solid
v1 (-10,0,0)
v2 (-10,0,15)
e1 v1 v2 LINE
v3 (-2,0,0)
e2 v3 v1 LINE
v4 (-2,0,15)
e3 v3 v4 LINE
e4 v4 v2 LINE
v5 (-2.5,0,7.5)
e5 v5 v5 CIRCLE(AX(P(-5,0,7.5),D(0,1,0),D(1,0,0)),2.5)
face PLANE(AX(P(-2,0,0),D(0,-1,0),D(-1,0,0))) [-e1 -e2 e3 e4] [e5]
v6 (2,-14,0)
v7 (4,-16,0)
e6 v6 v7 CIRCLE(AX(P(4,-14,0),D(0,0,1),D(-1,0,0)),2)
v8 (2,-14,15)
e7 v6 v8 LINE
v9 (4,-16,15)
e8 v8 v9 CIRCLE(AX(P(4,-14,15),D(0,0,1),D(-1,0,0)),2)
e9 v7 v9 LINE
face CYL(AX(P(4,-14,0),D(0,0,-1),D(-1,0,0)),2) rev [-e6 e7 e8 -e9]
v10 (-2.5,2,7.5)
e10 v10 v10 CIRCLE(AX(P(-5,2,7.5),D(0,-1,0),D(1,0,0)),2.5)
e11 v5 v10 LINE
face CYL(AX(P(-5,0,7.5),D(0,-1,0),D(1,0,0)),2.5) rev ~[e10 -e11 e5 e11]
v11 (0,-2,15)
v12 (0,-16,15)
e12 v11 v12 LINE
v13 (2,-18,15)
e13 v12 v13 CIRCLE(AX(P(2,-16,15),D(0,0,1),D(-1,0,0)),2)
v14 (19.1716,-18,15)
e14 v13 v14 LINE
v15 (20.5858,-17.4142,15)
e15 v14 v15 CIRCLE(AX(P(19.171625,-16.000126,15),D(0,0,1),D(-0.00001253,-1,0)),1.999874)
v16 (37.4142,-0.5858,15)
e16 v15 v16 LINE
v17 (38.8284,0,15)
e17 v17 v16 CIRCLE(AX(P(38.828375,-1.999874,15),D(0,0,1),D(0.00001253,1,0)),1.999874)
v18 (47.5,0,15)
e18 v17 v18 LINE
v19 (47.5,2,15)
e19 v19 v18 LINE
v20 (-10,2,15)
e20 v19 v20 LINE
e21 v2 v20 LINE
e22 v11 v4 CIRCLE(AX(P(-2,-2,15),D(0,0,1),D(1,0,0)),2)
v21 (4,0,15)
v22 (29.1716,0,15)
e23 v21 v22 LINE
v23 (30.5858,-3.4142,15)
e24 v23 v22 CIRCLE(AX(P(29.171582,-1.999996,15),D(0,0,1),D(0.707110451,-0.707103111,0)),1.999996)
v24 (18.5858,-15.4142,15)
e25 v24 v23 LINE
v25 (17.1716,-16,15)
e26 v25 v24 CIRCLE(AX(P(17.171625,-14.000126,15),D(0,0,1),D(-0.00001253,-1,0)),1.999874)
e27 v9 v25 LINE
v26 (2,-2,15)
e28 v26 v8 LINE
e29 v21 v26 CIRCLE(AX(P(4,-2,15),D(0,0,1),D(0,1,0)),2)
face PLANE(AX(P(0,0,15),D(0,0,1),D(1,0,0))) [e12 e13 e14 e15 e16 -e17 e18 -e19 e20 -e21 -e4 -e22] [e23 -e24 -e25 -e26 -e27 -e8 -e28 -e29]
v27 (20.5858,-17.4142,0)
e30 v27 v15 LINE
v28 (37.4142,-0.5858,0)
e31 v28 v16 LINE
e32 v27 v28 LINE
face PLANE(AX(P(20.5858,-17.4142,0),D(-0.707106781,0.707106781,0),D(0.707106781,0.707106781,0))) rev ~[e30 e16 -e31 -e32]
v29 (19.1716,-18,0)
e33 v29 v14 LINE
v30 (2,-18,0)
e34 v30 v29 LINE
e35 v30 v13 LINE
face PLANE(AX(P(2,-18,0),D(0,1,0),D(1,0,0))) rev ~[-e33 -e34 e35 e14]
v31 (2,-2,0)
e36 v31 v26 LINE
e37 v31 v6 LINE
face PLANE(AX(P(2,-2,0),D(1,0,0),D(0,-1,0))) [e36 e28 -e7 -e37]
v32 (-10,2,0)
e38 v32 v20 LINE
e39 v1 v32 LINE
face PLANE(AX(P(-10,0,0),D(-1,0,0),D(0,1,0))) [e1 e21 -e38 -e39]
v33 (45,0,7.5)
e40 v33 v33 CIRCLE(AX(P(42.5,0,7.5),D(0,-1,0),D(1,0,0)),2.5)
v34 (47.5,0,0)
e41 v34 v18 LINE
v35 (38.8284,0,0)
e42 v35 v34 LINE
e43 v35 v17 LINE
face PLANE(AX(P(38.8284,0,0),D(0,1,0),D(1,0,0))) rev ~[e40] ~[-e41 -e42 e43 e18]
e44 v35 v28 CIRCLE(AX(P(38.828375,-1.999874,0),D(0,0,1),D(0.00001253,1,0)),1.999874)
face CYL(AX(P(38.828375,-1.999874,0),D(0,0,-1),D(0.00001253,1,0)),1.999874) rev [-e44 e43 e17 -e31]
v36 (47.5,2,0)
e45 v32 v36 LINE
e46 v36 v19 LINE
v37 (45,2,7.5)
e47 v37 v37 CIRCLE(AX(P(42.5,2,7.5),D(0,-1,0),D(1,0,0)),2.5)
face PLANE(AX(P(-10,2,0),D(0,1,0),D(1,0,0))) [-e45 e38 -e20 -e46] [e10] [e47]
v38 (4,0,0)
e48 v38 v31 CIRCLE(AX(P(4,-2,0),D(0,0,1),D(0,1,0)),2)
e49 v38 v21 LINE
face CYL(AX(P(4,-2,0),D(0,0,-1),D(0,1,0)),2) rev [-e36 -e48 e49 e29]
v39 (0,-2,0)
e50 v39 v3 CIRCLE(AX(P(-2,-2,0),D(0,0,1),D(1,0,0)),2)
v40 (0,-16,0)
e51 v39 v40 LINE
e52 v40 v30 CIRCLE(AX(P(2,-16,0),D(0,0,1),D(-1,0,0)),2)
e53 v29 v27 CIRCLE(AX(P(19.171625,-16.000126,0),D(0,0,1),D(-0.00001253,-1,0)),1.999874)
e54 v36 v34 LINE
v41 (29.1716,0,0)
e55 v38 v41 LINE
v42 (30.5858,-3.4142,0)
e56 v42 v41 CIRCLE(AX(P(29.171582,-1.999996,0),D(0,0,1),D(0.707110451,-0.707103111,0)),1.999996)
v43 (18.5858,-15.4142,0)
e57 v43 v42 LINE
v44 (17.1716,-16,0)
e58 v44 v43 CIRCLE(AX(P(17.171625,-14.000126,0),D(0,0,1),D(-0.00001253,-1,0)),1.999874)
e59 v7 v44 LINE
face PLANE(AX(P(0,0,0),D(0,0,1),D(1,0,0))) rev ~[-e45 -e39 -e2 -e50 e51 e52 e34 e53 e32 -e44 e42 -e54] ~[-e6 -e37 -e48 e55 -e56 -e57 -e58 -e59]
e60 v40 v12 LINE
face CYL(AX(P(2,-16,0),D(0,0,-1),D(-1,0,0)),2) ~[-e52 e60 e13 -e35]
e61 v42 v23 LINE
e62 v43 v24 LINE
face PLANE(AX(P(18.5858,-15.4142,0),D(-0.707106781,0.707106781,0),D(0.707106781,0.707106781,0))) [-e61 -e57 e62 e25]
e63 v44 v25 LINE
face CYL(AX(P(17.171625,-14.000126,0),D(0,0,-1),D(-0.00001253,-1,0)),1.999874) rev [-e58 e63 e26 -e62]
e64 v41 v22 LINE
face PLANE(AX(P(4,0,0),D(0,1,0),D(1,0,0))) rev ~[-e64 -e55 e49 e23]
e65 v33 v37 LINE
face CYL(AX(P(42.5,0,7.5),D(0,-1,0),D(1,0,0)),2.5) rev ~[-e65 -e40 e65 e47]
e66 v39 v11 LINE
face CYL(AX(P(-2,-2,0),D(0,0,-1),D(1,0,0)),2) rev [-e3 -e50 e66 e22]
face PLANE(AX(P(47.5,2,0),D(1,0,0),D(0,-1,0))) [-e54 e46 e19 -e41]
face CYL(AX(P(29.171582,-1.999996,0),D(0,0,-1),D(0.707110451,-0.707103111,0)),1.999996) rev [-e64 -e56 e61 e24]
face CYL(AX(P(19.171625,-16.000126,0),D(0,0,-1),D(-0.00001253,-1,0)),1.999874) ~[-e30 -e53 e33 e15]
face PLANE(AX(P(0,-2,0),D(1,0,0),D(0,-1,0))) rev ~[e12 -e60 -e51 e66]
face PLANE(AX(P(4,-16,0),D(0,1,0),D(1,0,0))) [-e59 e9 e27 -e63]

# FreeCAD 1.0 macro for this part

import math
import FreeCAD as App
import Part
import Sketcher

doc = App.newDocument("Part")
body = doc.addObject("PartDesign::Body", "Body")

# Sketch on XY plane
sketch1 = body.newObject("Sketcher::SketchObject", "Sketch")
sketch1.AttachmentSupport = (doc.getObject("XY_Plane"), [""])
sketch1.MapMode = "FlatFace"
sketch1.addGeometry([
    Part.ArcOfCircle(Part.Circle(App.Vector(-2, -2, 0), App.Vector(0, 0, 1), 2), math.radians(0), math.radians(90)),  # 0
    Part.LineSegment(App.Vector(0, -2, 0), App.Vector(0, -16, 0)),  # 1
    Part.ArcOfCircle(Part.Circle(App.Vector(2, -16, 0), App.Vector(0, 0, 1), 2), math.radians(180), math.radians(270)),  # 2
    Part.LineSegment(App.Vector(2, -18, 0), App.Vector(19.2, -18, 0)),  # 3
    Part.ArcOfCircle(Part.Circle(App.Vector(19.2, -16, 0), App.Vector(0, 0, 1), 2), math.radians(-90), math.radians(-45)),  # 4
    Part.LineSegment(App.Vector(20.6, -17.4, 0), App.Vector(37.4, -0.6, 0)),  # 5
    Part.ArcOfCircle(Part.Circle(App.Vector(38.8, -2, 0), App.Vector(0, 0, 1), 2), math.radians(90), math.radians(135)),  # 6
    Part.LineSegment(App.Vector(38.8, 0, 0), App.Vector(47.5, 0, 0)),  # 7
    Part.LineSegment(App.Vector(47.5, 0, 0), App.Vector(47.5, 2, 0)),  # 8
    Part.LineSegment(App.Vector(47.5, 2, 0), App.Vector(-10, 2, 0)),  # 9
    Part.LineSegment(App.Vector(-10, 2, 0), App.Vector(-10, 0, 0)),  # 10
    Part.LineSegment(App.Vector(-10, 0, 0), App.Vector(-2, 0, 0)),  # 11
    Part.LineSegment(App.Vector(2, -14, 0), App.Vector(2, -2, 0)),  # 12
    Part.ArcOfCircle(Part.Circle(App.Vector(4, -2, 0), App.Vector(0, 0, 1), 2), math.radians(90), math.radians(180)),  # 13
    Part.LineSegment(App.Vector(4, 0, 0), App.Vector(29.2, 0, 0)),  # 14
    Part.ArcOfCircle(Part.Circle(App.Vector(29.2, -2, 0), App.Vector(0, 0, 1), 2), math.radians(-45), math.radians(90)),  # 15
    Part.LineSegment(App.Vector(30.6, -3.4, 0), App.Vector(18.6, -15.4, 0)),  # 16
    Part.ArcOfCircle(Part.Circle(App.Vector(17.2, -14, 0), App.Vector(0, 0, 1), 2), math.radians(-90), math.radians(-45)),  # 17
    Part.LineSegment(App.Vector(17.2, -16, 0), App.Vector(4, -16, 0)),  # 18
    Part.ArcOfCircle(Part.Circle(App.Vector(4, -14, 0), App.Vector(0, 0, 1), 2), math.radians(180), math.radians(270)),  # 19
], False)
sketch1.addConstraint([
    Sketcher.Constraint("Tangent", 0, 1, 1, 1),
    Sketcher.Constraint("Tangent", 1, 2, 2, 1),
    Sketcher.Constraint("Tangent", 2, 2, 3, 1),
    Sketcher.Constraint("Tangent", 3, 2, 4, 1),
    Sketcher.Constraint("Tangent", 4, 2, 5, 1),
    Sketcher.Constraint("Tangent", 5, 2, 6, 2),
    Sketcher.Constraint("Tangent", 6, 1, 7, 1),
    Sketcher.Constraint("Coincident", 7, 2, 8, 1),
    Sketcher.Constraint("Coincident", 8, 2, 9, 1),
    Sketcher.Constraint("Coincident", 9, 2, 10, 1),
    Sketcher.Constraint("Coincident", 10, 2, 11, 1),
    Sketcher.Constraint("Tangent", 11, 2, 0, 2),
    Sketcher.Constraint("Tangent", 12, 2, 13, 2),
    Sketcher.Constraint("Tangent", 13, 1, 14, 1),
    Sketcher.Constraint("Tangent", 14, 2, 15, 2),
    Sketcher.Constraint("Tangent", 15, 1, 16, 1),
    Sketcher.Constraint("Tangent", 16, 2, 17, 2),
    Sketcher.Constraint("Tangent", 17, 1, 18, 1),
    Sketcher.Constraint("Tangent", 18, 2, 19, 2),
    Sketcher.Constraint("Tangent", 19, 1, 12, 1),
    Sketcher.Constraint("Vertical", 1),
    Sketcher.Constraint("Horizontal", 3),
    Sketcher.Constraint("Horizontal", 7),
    Sketcher.Constraint("Vertical", 8),
    Sketcher.Constraint("Horizontal", 9),
    Sketcher.Constraint("Vertical", 10),
    Sketcher.Constraint("Horizontal", 11),
    Sketcher.Constraint("Vertical", 12),
    Sketcher.Constraint("Horizontal", 14),
    Sketcher.Constraint("Horizontal", 18),
    Sketcher.Constraint("Equal", 0, 2),
    Sketcher.Constraint("Equal", 2, 4),
    Sketcher.Constraint("Equal", 4, 6),
    Sketcher.Constraint("Equal", 6, 13),
    Sketcher.Constraint("Equal", 13, 15),
    Sketcher.Constraint("Equal", 15, 17),
    Sketcher.Constraint("Equal", 17, 19),
    Sketcher.Constraint("PointOnObject", 0, 1, -2),
    Sketcher.Constraint("PointOnObject", 6, 1, -1),
    Sketcher.Constraint("PointOnObject", 10, 2, -1),
    Sketcher.Constraint("PointOnObject", 13, 1, -1),
    Sketcher.Constraint("Parallel", 5, 16),
    Sketcher.Constraint("Horizontal", 1, 2, 17, 1),
    Sketcher.Constraint("Vertical", 2, 2, 12, 2),
    Sketcher.Constraint("Radius", 0, 2.0),
    Sketcher.Constraint("DistanceY", 8, 1, 8, 2, 2.0),
    Sketcher.Constraint("DistanceY", 2, 2, -1, 1, 18.0),
    Sketcher.Constraint("DistanceX", 9, 2, -1, 1, 10.0),
    Sketcher.Constraint("DistanceX", 4, 3, 15, 3, 10.0),
    Sketcher.Constraint("DistanceX", 17, 3, 4, 3, 2.0),
    Sketcher.Constraint("DistanceX", 9, 2, 9, 1, 57.5),
    Sketcher.Constraint("DistanceX", 3, 1, 3, 2, 17.1716),
])
pad1 = body.newObject("PartDesign::Pad", "Pad")
pad1.Profile = sketch1
pad1.Length = 15

# Sketch on XZ plane
sketch2 = body.newObject("Sketcher::SketchObject", "Sketch001")
sketch2.AttachmentSupport = (doc.getObject("XZ_Plane"), [""])
sketch2.MapMode = "FlatFace"
sketch2.addGeometry([
    Part.Circle(App.Vector(42.5, 7.5, 0), App.Vector(0, 0, 1), 2.5),
    Part.Circle(App.Vector(-5, 7.5, 0), App.Vector(0, 0, 1), 2.5),
], False)
sketch2.addConstraint([
    Sketcher.Constraint("Equal", 0, 1),
    Sketcher.Constraint("Horizontal", 0, 3, 1, 3),
    Sketcher.Constraint("Diameter", 0, 5.0),
    Sketcher.Constraint("DistanceX", 1, 3, -1, 1, 5.0),
    Sketcher.Constraint("DistanceX", -1, 1, 0, 3, 42.5),
    Sketcher.Constraint("DistanceY", -1, 1, 0, 3, 7.5),
])
pocket1 = body.newObject("PartDesign::Pocket", "Pocket")
pocket1.Profile = sketch2
pocket1.Length = 10

doc.recompute()
